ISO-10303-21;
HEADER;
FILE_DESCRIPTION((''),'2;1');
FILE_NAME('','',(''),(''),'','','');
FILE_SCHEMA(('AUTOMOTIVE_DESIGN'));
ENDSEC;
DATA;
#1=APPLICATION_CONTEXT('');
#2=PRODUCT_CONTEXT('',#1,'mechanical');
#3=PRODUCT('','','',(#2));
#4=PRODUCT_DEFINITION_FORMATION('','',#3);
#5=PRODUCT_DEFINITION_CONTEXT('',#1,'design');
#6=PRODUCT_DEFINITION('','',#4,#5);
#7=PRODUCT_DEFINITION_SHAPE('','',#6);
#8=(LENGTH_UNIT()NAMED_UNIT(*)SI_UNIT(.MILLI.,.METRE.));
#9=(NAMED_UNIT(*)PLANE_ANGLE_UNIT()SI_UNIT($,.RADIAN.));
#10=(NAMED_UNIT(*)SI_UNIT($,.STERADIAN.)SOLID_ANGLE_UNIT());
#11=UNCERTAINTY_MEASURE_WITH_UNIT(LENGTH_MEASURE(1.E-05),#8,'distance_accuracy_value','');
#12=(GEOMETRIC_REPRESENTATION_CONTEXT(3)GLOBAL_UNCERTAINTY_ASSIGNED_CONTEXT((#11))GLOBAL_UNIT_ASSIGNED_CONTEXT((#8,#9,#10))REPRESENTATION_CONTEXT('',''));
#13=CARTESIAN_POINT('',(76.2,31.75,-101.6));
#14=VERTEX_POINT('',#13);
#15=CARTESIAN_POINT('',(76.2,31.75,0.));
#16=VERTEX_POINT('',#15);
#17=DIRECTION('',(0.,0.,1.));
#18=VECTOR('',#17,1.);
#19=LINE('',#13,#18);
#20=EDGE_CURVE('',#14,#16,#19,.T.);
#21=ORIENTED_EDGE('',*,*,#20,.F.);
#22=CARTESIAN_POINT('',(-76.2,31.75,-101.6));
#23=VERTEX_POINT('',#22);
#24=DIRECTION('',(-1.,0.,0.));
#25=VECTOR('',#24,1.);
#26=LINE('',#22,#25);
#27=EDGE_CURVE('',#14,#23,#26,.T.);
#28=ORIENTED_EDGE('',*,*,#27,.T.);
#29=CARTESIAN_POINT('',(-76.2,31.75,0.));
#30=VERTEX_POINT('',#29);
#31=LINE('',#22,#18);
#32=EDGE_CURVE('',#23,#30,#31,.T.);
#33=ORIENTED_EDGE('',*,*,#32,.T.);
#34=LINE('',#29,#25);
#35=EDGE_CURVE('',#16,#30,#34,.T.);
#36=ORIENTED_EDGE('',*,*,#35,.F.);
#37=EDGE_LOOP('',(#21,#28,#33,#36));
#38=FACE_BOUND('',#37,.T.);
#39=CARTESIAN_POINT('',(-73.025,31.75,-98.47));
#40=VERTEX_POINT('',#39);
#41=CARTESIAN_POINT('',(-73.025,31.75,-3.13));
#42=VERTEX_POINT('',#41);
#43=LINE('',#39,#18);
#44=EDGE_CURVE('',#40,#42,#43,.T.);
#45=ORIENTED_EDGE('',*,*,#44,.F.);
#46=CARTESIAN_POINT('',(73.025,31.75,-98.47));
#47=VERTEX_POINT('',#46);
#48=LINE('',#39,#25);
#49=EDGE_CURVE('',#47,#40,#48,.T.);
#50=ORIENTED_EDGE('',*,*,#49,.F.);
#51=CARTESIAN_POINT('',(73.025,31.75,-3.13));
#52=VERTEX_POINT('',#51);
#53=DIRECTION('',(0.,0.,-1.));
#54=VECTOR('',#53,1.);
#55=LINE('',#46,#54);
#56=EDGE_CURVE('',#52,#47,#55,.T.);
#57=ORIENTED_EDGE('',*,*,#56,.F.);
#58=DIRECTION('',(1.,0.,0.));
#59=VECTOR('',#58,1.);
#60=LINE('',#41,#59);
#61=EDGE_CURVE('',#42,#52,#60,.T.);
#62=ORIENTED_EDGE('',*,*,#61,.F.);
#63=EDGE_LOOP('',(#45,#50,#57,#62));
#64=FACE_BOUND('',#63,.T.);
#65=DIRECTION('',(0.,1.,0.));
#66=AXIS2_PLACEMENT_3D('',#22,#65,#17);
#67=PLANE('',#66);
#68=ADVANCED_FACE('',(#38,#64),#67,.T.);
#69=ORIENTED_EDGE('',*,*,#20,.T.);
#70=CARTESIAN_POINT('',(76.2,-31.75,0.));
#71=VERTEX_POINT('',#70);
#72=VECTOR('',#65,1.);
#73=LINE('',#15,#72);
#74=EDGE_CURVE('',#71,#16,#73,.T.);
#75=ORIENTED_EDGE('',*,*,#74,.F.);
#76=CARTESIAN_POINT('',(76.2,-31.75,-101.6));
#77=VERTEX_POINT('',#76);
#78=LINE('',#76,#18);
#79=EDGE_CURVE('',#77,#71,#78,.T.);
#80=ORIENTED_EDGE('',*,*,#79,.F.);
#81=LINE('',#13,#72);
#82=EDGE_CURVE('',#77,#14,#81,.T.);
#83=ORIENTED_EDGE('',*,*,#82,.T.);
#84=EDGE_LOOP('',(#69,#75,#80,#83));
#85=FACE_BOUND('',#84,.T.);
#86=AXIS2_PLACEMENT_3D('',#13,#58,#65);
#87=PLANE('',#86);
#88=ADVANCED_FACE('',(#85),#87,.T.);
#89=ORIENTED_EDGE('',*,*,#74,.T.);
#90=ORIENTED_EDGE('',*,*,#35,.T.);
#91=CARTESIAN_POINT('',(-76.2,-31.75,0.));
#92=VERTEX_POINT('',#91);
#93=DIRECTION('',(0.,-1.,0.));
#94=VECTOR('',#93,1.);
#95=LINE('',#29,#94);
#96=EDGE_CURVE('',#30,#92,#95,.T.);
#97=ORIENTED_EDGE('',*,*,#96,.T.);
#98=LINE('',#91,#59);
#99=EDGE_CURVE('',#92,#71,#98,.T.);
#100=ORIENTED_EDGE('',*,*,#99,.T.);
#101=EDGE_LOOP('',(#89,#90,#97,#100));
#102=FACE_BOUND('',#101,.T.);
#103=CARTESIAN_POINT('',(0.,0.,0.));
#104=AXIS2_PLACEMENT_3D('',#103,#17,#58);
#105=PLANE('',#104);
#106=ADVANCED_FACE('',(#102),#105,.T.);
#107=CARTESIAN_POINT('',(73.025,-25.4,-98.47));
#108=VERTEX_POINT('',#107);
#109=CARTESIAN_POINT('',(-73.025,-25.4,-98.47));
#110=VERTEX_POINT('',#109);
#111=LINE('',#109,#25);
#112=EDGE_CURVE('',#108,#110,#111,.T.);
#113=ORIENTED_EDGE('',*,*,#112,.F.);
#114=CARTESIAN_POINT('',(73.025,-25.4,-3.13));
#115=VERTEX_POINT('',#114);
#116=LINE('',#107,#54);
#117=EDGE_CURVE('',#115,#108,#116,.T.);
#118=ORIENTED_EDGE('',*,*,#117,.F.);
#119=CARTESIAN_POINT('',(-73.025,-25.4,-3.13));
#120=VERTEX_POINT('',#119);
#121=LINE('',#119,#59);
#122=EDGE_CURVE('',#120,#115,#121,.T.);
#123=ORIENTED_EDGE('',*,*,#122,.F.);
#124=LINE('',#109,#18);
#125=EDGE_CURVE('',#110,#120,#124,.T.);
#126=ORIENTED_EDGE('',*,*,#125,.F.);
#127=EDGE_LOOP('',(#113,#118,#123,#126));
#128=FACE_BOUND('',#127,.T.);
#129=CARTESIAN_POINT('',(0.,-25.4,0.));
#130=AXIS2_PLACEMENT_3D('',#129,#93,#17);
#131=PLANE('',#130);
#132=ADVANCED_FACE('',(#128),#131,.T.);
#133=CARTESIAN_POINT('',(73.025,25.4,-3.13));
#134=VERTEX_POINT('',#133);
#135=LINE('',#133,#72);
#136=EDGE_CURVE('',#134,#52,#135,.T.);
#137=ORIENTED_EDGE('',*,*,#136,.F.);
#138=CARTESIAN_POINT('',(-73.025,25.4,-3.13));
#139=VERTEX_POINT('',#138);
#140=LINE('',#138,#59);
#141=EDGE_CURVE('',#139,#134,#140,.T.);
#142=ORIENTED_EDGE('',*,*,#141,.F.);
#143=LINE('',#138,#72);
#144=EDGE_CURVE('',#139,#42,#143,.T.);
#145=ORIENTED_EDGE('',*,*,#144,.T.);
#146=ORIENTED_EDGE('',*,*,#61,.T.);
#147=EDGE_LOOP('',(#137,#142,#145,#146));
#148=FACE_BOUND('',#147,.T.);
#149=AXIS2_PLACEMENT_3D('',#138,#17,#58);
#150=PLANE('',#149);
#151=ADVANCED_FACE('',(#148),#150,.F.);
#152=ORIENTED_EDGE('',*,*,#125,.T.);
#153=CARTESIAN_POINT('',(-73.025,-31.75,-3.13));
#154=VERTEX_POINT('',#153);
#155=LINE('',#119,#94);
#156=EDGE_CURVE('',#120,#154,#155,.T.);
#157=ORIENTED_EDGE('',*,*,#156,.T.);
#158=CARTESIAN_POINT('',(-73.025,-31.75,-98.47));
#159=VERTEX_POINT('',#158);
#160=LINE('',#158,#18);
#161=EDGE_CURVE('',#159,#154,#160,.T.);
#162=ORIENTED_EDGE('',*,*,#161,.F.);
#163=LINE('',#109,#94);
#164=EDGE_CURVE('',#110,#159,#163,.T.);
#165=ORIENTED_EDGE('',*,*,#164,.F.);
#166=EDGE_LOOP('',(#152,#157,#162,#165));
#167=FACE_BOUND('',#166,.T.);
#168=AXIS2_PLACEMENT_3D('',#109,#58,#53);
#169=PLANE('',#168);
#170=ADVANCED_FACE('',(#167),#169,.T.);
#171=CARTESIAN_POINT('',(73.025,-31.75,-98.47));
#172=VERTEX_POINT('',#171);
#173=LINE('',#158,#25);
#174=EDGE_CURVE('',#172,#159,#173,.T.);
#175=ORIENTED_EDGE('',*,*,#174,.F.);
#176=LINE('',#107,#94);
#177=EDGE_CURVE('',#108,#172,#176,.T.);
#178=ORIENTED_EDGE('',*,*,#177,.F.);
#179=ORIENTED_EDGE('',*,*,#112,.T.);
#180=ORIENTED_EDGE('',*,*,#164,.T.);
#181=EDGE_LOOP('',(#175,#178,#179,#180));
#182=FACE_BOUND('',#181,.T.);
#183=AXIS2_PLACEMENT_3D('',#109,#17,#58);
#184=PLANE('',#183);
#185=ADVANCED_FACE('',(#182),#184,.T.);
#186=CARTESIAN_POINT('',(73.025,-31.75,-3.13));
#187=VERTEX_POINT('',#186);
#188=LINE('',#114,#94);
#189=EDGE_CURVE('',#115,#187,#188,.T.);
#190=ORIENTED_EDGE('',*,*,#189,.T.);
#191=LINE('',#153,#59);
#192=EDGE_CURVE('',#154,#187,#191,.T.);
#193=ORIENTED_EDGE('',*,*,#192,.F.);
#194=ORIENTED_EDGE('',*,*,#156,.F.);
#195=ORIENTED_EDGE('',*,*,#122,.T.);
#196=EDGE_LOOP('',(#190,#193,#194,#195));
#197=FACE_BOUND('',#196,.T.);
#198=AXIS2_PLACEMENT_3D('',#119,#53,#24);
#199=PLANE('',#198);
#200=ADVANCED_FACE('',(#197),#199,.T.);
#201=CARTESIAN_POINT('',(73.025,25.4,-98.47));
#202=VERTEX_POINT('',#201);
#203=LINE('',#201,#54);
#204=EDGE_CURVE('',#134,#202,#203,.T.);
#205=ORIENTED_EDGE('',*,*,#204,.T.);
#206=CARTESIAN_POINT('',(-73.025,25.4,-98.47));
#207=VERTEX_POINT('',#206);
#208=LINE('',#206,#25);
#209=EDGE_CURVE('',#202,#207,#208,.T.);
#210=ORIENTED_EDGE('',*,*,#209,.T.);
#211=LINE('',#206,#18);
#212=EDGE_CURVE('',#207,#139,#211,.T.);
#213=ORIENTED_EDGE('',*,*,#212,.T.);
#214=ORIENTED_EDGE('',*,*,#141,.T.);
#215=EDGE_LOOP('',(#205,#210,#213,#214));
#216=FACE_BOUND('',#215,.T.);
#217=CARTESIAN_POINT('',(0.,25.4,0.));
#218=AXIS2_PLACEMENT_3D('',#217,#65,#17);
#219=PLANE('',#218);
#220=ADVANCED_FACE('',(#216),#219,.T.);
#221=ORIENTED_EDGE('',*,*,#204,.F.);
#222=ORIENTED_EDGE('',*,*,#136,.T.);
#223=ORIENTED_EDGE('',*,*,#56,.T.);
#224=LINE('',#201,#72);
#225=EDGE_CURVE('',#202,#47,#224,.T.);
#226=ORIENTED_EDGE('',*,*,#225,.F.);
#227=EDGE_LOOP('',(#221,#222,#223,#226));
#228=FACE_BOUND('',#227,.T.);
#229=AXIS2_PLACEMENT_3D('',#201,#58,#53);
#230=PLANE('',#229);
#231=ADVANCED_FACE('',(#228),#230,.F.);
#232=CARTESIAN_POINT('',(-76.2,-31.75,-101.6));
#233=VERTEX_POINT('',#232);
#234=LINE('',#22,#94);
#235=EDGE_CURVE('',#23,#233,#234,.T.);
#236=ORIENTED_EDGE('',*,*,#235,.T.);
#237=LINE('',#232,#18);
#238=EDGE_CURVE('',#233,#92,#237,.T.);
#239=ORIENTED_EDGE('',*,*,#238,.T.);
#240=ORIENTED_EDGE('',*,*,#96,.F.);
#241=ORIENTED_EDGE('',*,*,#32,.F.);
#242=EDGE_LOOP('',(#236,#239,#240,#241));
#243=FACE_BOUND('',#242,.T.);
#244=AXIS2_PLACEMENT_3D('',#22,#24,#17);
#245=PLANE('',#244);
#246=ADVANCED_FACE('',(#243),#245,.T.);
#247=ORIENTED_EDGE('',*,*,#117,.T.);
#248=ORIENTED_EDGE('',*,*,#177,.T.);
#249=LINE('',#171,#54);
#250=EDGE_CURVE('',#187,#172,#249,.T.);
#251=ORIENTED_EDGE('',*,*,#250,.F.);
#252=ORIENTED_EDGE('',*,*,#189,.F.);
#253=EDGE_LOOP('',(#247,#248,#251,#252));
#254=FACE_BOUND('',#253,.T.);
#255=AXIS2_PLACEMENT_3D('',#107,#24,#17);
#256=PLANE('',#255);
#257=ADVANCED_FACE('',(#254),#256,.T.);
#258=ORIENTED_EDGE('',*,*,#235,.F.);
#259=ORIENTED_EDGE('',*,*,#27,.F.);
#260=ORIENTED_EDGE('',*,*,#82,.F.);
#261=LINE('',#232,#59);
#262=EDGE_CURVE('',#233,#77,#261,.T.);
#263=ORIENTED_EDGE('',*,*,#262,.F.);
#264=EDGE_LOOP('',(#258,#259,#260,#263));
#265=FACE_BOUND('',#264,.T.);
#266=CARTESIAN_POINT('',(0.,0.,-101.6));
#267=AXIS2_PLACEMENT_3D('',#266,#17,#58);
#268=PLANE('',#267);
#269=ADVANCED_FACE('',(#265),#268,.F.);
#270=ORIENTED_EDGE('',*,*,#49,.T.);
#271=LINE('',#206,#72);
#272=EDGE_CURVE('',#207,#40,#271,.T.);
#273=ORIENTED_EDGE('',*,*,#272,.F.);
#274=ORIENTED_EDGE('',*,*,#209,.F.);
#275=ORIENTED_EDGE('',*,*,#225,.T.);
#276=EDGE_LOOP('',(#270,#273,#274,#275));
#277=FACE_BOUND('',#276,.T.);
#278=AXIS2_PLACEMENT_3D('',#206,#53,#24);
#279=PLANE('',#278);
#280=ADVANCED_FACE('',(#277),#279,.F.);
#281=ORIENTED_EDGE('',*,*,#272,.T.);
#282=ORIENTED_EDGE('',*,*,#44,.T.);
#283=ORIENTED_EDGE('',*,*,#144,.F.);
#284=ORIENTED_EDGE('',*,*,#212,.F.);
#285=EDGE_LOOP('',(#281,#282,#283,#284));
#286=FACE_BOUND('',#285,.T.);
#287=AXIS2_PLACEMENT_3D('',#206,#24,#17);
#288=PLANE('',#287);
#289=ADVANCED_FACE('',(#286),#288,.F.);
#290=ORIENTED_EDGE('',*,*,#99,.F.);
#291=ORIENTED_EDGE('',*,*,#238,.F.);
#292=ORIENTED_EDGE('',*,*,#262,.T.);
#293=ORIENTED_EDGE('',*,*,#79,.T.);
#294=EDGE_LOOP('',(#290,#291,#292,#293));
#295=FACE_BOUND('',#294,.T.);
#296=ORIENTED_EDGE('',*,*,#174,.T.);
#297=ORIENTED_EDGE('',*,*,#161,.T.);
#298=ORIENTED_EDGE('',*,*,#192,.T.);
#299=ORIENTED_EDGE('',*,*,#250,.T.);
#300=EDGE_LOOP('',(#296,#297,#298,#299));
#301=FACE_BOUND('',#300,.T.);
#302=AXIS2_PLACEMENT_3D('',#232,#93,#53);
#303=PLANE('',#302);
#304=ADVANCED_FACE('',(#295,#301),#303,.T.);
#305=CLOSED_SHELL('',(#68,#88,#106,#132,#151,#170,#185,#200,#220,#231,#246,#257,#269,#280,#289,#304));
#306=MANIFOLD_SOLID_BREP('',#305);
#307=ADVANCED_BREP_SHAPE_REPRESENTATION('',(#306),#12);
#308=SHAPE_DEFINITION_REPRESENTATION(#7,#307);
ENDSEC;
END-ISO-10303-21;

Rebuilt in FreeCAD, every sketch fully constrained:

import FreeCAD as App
import Part
import Sketcher
from FreeCAD import Vector
Q = App.Units.Quantity


def add_polygon(sketch, points):
    """Adds a closed chain of lines whose ends are joined by coincident constraints."""
    first, n = sketch.GeometryCount, len(points)
    for a, b in zip(points, points[1:] + points[:1]):
        sketch.addGeometry(Part.LineSegment(App.Vector(*a, 0), App.Vector(*b, 0)), False)
    for i in range(n):
        sketch.addConstraint(Sketcher.Constraint("Coincident", first + i, 2, first + (i + 1) % n, 1))

doc = App.newDocument("Part")
body = doc.addObject("PartDesign::Body", "Body")

# Sketch on XY plane
sketch1 = body.newObject("Sketcher::SketchObject", "Sketch")
sketch1.AttachmentSupport = (doc.getObject("XY_Plane"), [""])
sketch1.MapMode = "FlatFace"
add_polygon(sketch1, [(-76.2, 31.75), (-76.2, -31.75), (76.2, -31.75), (76.2, 31.75)])  # lines 0-3
sketch1.addConstraint([
    Sketcher.Constraint("Vertical", 0),
    Sketcher.Constraint("Horizontal", 1),
    Sketcher.Constraint("Vertical", 2),
    Sketcher.Constraint("Horizontal", 3),
    Sketcher.Constraint("Symmetric", 0, 2, 2, 2, -1, 1),
    Sketcher.Constraint("DistanceX", 1, 1, 1, 2, Q("6 in")),
    Sketcher.Constraint("DistanceY", 0, 2, 0, 1, Q("2.5 in")),
])
pad1 = body.newObject("PartDesign::Pad", "Pad")
pad1.Profile = sketch1
pad1.Length = Q("4 in")
pad1.Reversed = True

# Sketch on XZ plane
sketch2 = body.newObject("Sketcher::SketchObject", "Sketch001")
sketch2.AttachmentSupport = (doc.getObject("XZ_Plane"), [""])
sketch2.MapMode = "FlatFace"
sketch2.AttachmentOffset = App.Placement(Vector(0, 0, -1.25 * 25.4), App.Rotation())
add_polygon(sketch2, [(-73.025, -98.47), (-73.025, -3.13), (73.025, -3.13), (73.025, -98.47)])  # lines 0-3
sketch2.addConstraint([
    Sketcher.Constraint("Vertical", 0),
    Sketcher.Constraint("Horizontal", 1),
    Sketcher.Constraint("Vertical", 2),
    Sketcher.Constraint("Horizontal", 3),
    Sketcher.Constraint("DistanceX", 1, 1, 1, 2, Q("5.75 in")),
    Sketcher.Constraint("DistanceX", 0, 2, -1, 1, Q("2.875 in")),
    Sketcher.Constraint("DistanceY", 0, 1, 0, 2, 95.34),
    Sketcher.Constraint("DistanceY", 0, 2, -1, 1, 3.13),
])
pocket1 = body.newObject("PartDesign::Pocket", "Pocket")
pocket1.Profile = sketch2
pocket1.Length = Q("0.25 in")
pocket1.Reversed = True
doc.recompute()

mirrored = body.newObject("PartDesign::Mirrored", "Mirrored")
mirrored.Originals = [pocket1]
mirrored.MirrorPlane = (doc.getObject("XZ_Plane"), [""])
body.Tip = mirrored

doc.recompute()
